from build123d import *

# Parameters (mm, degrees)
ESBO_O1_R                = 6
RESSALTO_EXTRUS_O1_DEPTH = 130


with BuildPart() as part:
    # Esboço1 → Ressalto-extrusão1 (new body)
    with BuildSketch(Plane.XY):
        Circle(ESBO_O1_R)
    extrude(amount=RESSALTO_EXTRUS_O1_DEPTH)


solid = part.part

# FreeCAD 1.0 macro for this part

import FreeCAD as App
import Part
import Sketcher

doc = App.newDocument("Part")
body = doc.addObject("PartDesign::Body", "Body")

sketch1 = body.newObject("Sketcher::SketchObject", "Sketch")
sketch1.AttachmentSupport = (doc.getObject("XY_Plane"), [""])
sketch1.MapMode = "FlatFace"
sketch1.addGeometry(Part.Circle(App.Vector(0, 0, 0), App.Vector(0, 0, 1), 6), False)
sketch1.addConstraint([
    Sketcher.Constraint("Coincident", 0, 3, -1, 1),
    Sketcher.Constraint("Diameter", 0, 12.0),
])
pad1 = body.newObject("PartDesign::Pad", "Pad")
pad1.Profile = sketch1
pad1.Length = 130

doc.recompute()
